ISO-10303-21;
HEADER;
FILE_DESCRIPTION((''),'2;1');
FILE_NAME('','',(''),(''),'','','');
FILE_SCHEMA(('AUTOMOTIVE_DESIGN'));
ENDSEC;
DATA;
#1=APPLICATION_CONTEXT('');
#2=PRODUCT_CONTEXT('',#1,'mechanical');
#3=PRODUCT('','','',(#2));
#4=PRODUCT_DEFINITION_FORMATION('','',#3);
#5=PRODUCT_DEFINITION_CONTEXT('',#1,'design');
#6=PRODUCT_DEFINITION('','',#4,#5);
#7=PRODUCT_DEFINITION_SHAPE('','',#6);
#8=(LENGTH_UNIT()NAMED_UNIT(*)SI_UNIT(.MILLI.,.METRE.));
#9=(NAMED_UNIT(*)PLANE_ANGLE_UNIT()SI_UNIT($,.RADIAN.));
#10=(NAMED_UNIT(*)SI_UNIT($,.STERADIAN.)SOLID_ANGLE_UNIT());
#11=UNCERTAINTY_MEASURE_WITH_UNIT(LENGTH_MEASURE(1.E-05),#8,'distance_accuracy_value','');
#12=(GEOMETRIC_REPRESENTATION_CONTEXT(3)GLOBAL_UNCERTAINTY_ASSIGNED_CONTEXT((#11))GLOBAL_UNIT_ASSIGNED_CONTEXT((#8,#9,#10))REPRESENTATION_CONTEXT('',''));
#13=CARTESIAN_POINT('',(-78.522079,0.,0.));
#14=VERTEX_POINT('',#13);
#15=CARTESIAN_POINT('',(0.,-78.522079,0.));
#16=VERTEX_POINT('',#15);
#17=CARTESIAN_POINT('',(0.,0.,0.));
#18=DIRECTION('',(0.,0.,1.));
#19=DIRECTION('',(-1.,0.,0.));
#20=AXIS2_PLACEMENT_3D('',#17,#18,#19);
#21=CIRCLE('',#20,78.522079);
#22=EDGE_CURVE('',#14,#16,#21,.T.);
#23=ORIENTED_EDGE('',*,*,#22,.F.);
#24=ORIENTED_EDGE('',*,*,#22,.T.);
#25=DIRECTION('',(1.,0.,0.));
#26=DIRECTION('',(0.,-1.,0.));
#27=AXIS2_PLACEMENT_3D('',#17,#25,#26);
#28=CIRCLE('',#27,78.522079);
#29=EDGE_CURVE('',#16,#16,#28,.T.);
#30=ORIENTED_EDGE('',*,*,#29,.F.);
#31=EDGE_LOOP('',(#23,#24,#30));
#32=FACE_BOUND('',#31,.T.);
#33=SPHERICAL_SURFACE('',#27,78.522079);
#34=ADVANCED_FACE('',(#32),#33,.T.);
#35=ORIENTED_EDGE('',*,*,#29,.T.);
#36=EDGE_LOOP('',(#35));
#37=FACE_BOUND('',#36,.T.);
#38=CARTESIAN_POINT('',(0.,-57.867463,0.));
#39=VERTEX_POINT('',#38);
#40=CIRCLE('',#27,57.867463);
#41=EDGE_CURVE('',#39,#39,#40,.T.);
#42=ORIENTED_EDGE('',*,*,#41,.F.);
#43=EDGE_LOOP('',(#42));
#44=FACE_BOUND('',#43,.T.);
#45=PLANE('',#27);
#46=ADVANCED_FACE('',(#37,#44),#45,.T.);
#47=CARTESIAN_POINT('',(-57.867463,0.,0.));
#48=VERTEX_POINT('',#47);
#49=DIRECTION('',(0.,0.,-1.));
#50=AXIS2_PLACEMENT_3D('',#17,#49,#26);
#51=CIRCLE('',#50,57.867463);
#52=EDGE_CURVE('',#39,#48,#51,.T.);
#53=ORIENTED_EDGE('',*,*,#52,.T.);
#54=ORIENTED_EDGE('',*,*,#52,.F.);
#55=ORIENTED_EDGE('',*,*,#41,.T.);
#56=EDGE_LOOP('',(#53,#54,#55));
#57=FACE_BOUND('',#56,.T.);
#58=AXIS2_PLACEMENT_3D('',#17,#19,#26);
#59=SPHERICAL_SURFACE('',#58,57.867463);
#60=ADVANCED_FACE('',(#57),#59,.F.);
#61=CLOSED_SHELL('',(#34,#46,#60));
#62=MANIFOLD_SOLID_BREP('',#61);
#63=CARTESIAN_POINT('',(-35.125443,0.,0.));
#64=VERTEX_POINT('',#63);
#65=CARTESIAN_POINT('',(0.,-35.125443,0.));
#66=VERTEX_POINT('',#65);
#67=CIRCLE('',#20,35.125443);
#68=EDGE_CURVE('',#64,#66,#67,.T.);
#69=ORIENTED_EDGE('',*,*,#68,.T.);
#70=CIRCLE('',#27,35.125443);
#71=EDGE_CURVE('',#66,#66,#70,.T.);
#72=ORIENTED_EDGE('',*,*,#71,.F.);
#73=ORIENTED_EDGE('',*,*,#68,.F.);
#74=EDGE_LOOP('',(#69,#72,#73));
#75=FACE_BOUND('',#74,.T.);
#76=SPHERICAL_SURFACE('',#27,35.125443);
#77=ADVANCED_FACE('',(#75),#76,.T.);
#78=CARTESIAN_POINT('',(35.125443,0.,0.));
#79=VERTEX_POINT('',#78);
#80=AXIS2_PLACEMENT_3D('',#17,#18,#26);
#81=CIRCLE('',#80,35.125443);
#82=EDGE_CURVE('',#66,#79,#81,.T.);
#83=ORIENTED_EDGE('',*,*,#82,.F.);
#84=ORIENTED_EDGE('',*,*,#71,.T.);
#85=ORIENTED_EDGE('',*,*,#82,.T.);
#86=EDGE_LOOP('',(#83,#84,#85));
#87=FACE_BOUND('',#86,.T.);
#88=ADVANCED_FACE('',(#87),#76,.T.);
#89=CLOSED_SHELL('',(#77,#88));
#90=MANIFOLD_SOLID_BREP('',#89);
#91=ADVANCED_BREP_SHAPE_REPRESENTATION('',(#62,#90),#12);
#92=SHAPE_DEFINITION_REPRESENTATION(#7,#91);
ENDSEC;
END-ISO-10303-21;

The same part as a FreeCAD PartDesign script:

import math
import FreeCAD as App
import Part
import Sketcher
Q = App.Units.Quantity

doc = App.newDocument("Part")
body = doc.addObject("PartDesign::Body", "Body")

# Sketch on XY plane
sketch1 = body.newObject("Sketcher::SketchObject", "Sketch")
sketch1.AttachmentSupport = (doc.getObject("XY_Plane"), [""])
sketch1.MapMode = "FlatFace"
sketch1.addGeometry([
    Part.ArcOfCircle(Part.Circle(App.Vector(0, 0, 0), App.Vector(0, 0, 1), 35), math.radians(180), math.radians(270)),
    Part.ArcOfCircle(Part.Circle(App.Vector(0, 0, 0), App.Vector(0, 0, 1), 35), math.radians(-90), math.radians(0)),
    Part.LineSegment(App.Vector(35, 0, 0), App.Vector(-35, 0, 0)),
], False)
sketch1.addConstraint([
    Sketcher.Constraint("Tangent", 0, 2, 1, 1),
    Sketcher.Constraint("Coincident", 1, 2, 2, 1),
    Sketcher.Constraint("Coincident", 2, 2, 0, 1),
    Sketcher.Constraint("Horizontal", 2),
    Sketcher.Constraint("Coincident", 0, 3, -1, 1),
    Sketcher.Constraint("Equal", 0, 1),
    Sketcher.Constraint("PointOnObject", 0, 2, -2),
    Sketcher.Constraint("PointOnObject", 1, 2, -1),
    Sketcher.Constraint("Radius", 0, Q("35.125443 mm")),
])
revolution = body.newObject("PartDesign::Revolution", "Revolution")
revolution.Profile = sketch1
revolution.ReferenceAxis = (sketch1, ["H_Axis"])
revolution.Angle = 360
body2 = doc.addObject("PartDesign::Body", "Body001")

# Sketch on XY plane
sketch2 = body2.newObject("Sketcher::SketchObject", "Sketch001")
sketch2.AttachmentSupport = (doc.getObject("XY_Plane001"), [""])
sketch2.MapMode = "FlatFace"
sketch2.addGeometry([
    Part.LineSegment(App.Vector(0, -79, 0), App.Vector(0, -58, 0)),
    Part.ArcOfCircle(Part.Circle(App.Vector(0, 0, 0), App.Vector(0, 0, 1), 58), math.radians(180), math.radians(270)),
    Part.LineSegment(App.Vector(-58, 0, 0), App.Vector(-79, 0, 0)),
    Part.ArcOfCircle(Part.Circle(App.Vector(0, 0, 0), App.Vector(0, 0, 1), 79), math.radians(180), math.radians(270)),
], False)
sketch2.addConstraint([
    Sketcher.Constraint("Coincident", 0, 2, 1, 2),
    Sketcher.Constraint("Coincident", 1, 1, 2, 1),
    Sketcher.Constraint("Coincident", 2, 2, 3, 1),
    Sketcher.Constraint("Coincident", 3, 2, 0, 1),
    Sketcher.Constraint("Vertical", 0),
    Sketcher.Constraint("Horizontal", 2),
    Sketcher.Constraint("Coincident", 1, 3, -1, 1),
    Sketcher.Constraint("Coincident", 3, 3, -1, 1),
    Sketcher.Constraint("PointOnObject", 0, 2, -2),
    Sketcher.Constraint("PointOnObject", 1, 1, -1),
    Sketcher.Constraint("Radius", 3, Q("78.522079 mm")),
    Sketcher.Constraint("Radius", 1, Q("57.867463 mm")),
])
revolution2 = body2.newObject("PartDesign::Revolution", "Revolution001")
revolution2.Profile = sketch2
revolution2.ReferenceAxis = (sketch2, ["H_Axis"])
revolution2.Angle = 360

doc.recompute()
